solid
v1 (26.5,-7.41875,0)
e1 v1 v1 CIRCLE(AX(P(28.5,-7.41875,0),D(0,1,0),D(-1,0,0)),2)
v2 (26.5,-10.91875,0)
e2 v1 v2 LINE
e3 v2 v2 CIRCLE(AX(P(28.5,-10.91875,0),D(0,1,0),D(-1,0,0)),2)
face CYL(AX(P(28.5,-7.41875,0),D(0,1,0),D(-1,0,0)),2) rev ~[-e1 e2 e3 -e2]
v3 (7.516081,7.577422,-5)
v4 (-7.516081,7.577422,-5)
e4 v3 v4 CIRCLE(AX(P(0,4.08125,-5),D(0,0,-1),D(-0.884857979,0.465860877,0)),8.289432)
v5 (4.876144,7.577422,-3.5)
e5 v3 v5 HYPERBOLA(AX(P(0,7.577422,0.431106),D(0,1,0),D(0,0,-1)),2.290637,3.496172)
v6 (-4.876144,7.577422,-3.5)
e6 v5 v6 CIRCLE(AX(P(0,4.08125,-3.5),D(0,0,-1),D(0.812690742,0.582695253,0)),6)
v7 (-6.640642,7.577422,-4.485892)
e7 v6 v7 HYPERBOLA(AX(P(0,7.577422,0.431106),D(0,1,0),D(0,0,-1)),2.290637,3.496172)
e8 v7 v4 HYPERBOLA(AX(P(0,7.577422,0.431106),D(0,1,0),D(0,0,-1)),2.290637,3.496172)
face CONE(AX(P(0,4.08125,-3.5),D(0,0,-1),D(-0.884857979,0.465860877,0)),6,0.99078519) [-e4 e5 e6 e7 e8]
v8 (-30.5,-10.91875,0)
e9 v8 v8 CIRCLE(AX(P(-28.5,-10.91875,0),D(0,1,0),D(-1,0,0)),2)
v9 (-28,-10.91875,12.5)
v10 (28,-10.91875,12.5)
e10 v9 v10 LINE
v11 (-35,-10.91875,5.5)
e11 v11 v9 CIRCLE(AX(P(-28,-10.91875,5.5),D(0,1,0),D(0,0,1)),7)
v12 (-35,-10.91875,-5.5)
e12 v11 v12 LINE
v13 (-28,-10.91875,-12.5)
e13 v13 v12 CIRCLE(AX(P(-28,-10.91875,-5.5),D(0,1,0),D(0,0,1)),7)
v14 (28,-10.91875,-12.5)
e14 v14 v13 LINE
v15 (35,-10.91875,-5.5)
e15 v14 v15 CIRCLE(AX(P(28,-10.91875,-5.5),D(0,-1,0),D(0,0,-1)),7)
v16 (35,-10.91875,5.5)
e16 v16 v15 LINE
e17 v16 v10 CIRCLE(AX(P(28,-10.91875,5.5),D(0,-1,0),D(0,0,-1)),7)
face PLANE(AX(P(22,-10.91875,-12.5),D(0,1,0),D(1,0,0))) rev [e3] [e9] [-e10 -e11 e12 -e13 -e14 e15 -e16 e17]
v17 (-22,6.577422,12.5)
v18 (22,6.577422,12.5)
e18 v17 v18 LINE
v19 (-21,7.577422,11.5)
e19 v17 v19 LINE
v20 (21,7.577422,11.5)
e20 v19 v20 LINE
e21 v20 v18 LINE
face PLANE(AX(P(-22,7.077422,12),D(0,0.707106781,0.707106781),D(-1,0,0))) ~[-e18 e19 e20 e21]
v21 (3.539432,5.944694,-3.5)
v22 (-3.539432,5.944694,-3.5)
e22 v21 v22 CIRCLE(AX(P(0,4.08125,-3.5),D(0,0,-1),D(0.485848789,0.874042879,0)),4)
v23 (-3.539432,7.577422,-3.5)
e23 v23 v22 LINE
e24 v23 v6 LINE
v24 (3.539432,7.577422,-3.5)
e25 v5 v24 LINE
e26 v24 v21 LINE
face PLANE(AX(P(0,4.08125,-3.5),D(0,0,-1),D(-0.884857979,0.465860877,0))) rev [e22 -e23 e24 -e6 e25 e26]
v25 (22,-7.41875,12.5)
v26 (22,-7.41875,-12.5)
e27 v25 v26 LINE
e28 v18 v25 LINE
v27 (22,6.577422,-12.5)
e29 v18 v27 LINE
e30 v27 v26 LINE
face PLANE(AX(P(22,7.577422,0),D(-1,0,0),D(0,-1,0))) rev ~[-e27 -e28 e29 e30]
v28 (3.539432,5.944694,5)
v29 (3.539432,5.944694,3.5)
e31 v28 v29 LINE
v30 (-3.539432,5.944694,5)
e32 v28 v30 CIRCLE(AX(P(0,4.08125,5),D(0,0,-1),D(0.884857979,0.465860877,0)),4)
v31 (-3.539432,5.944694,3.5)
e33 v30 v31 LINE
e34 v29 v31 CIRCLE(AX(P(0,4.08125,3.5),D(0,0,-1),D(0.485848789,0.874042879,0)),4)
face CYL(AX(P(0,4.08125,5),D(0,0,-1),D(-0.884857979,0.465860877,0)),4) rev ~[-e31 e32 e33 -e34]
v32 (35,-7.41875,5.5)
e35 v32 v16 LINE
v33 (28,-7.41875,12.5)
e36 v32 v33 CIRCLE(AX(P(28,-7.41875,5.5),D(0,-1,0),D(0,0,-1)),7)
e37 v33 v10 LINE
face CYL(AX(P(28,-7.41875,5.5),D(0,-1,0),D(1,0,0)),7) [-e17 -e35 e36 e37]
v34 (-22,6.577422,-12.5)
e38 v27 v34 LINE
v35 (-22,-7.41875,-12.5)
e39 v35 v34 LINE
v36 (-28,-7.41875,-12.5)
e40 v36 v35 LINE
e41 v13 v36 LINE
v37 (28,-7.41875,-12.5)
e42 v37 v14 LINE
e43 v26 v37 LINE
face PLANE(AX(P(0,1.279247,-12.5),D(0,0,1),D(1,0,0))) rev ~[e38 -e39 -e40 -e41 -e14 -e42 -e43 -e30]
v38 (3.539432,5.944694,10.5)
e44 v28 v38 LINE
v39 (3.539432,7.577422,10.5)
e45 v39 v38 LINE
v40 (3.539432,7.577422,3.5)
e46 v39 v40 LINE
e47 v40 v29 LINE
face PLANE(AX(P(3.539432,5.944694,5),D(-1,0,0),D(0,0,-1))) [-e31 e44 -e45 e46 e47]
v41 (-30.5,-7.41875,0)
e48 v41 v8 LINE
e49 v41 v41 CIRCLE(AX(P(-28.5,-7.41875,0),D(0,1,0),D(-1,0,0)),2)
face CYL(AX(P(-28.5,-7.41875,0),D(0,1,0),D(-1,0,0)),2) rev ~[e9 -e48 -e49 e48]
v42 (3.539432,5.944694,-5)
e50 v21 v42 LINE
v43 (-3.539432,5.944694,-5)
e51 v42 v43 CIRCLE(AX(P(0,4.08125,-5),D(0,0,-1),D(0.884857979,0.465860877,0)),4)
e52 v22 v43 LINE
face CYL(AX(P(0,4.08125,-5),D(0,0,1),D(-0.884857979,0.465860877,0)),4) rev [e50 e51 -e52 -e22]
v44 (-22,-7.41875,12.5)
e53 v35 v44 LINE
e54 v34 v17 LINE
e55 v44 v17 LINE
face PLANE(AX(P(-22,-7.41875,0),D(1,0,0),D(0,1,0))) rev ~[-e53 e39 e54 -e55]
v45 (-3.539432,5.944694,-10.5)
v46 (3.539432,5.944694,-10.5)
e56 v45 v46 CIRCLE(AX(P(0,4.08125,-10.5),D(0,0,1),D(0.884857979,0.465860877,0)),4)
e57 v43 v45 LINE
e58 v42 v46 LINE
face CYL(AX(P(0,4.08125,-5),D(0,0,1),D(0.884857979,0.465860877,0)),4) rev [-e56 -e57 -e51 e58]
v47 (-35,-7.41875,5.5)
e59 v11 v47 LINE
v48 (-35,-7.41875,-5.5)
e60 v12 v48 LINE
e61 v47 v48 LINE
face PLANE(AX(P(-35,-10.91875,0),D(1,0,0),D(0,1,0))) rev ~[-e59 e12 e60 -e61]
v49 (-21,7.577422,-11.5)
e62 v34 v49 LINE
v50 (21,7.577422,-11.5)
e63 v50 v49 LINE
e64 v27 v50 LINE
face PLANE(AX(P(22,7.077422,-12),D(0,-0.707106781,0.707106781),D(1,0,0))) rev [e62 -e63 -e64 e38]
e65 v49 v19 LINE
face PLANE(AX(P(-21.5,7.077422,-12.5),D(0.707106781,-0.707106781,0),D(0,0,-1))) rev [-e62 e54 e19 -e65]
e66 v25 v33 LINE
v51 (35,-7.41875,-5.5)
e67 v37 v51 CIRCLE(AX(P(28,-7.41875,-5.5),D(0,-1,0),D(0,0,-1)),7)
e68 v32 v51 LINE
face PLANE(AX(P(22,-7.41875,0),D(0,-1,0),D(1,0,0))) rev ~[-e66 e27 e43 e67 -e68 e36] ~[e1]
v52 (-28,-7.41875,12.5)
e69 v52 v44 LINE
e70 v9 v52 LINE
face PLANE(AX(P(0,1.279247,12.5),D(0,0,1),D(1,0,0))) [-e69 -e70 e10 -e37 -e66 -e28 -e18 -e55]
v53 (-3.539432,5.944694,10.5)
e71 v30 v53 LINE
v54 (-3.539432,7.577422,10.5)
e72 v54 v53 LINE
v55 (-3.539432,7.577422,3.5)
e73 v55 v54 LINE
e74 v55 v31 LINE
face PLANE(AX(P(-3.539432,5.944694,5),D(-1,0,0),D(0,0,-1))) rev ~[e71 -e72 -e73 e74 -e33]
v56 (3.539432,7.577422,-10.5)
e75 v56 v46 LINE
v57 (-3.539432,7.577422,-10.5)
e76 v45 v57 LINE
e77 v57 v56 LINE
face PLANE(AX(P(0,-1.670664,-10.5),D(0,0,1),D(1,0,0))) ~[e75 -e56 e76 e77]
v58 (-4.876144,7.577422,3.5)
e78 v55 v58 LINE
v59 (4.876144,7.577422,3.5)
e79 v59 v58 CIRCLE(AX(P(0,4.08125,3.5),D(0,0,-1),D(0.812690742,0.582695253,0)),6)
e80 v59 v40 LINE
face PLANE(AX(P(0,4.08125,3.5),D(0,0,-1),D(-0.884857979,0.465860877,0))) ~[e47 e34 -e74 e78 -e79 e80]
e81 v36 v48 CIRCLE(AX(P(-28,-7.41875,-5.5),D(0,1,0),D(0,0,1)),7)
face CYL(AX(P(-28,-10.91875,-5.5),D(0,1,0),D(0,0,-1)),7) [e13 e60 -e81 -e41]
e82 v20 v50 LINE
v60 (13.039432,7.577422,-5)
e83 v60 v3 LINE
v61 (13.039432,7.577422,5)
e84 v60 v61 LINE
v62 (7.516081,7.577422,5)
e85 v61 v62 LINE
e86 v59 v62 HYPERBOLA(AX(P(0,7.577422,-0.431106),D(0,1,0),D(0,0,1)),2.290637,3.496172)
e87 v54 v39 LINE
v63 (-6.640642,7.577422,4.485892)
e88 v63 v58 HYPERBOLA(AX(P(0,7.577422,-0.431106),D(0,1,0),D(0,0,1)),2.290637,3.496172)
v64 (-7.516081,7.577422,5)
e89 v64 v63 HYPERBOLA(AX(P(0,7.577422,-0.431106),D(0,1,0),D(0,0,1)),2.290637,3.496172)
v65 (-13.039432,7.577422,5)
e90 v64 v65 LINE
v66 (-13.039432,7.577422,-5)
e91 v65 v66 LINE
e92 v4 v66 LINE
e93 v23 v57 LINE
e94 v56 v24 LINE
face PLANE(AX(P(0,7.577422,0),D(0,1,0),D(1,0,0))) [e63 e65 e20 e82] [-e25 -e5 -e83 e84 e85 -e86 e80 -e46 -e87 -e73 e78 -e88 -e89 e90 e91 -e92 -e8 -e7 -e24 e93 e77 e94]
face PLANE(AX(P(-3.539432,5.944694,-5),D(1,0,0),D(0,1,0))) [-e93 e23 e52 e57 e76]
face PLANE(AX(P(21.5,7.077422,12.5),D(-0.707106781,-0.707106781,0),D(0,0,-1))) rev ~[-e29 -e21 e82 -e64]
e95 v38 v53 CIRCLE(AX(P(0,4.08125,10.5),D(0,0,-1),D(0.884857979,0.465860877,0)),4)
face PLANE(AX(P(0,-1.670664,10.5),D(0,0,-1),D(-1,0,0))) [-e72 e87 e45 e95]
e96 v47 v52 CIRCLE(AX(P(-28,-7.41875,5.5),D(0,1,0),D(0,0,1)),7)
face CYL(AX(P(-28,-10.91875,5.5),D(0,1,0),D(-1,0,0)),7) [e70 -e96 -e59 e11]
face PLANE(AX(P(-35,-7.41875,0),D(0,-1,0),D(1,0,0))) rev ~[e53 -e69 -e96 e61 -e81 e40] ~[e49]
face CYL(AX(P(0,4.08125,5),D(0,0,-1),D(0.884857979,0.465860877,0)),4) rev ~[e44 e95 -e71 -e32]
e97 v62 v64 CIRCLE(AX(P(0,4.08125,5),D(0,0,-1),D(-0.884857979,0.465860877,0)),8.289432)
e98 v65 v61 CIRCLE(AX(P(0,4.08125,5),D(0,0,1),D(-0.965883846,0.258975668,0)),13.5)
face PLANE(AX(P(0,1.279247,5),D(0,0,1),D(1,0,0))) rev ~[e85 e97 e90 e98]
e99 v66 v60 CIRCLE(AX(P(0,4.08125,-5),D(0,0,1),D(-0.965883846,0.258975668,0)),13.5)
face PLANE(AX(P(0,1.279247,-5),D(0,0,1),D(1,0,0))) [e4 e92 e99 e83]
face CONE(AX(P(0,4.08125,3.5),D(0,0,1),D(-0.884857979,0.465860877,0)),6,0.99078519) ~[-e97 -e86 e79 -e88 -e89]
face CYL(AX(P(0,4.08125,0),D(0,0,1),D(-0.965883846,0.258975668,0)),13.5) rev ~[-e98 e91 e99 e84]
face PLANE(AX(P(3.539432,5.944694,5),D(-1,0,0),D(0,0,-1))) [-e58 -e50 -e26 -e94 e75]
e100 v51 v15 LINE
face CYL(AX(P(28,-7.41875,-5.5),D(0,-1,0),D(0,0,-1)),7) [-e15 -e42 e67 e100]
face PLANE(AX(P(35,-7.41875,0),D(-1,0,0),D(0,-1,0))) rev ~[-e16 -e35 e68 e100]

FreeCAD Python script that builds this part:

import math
import FreeCAD as App
import Part
import Sketcher


def edges_at(feature, points):
    """Names of the edges that pass closest to the given points."""
    edges = feature.Shape.Edges
    near = lambda p: min(range(len(edges)), key=lambda i: edges[i].distToShape(Part.Vertex(*p))[0])
    return sorted({f"Edge{near(p) + 1}" for p in points})


def add_polygon(sketch, points):
    """Adds a closed chain of lines whose ends are joined by coincident constraints."""
    first, n = sketch.GeometryCount, len(points)
    for a, b in zip(points, points[1:] + points[:1]):
        sketch.addGeometry(Part.LineSegment(App.Vector(*a, 0), App.Vector(*b, 0)), False)
    for i in range(n):
        sketch.addConstraint(Sketcher.Constraint("Coincident", first + i, 2, first + (i + 1) % n, 1))

doc = App.newDocument("Part")
params = doc.addObject("Spreadsheet::Sheet", "Params")
for row, (alias, value) in enumerate([
    ("sketch1_radius", "13.5 mm"),
    ("sketch1_width", "13 mm"),
    ("sketch1_width2", "70 mm"),
    ("sketch1_height", "3.5 mm"),
    ("pad1_length", "25 mm"),
    ("sketch2_radius", "4 mm"),
    ("sketch2_radius2", "13.5 mm"),
    ("sketch2_width", "9.5 mm"),
    ("pad2_length", "7.5 mm"),
    ("sketch3_radius", "4 mm"),
    ("sketch3_radius2", "13.5 mm"),
    ("sketch3_width", "9.5 mm"),
    ("pad3_length", "7.5 mm"),
    ("sketch4_width", "2 mm"),
    ("sketch4_height", "1.5 mm"),
    ("revolution_angle", "360 deg"),
    ("sketch5_width", "70 mm"),
    ("sketch5_height", "25 mm"),
    ("pocket1_length", "10 mm"),
    ("sketch6_height", "10 mm"),
    ("pocket2_length", "1.632728 mm"),
    ("sketch7_width", "44 mm"),
    ("pad4_length", "2 mm"),
    ("fillet_radius", "7 mm"),
    ("sketch8_diameter", "4 mm"),
    ("pocket3_length", "40 mm"),
    ("chamfer_size", "1 mm"),
], start=1):
    params.set(f"A{row}", alias)
    params.set(f"B{row}", "=" + value)
    params.setAlias(f"B{row}", alias)

body = doc.addObject("PartDesign::Body", "Body")

# Sketch on XY plane
sketch1 = body.newObject("Sketcher::SketchObject", "Sketch")
sketch1.AttachmentSupport = (doc.getObject("XY_Plane"), [""])
sketch1.MapMode = "FlatFace"
sketch1.addGeometry([
    Part.LineSegment(App.Vector(35, -7.41875, 0), App.Vector(22, -7.41875, 0)),  # 0
    Part.LineSegment(App.Vector(22, -7.41875, 0), App.Vector(22, 7.577422, 0)),  # 1
    Part.LineSegment(App.Vector(22, 7.577422, 0), App.Vector(13.039432, 7.577422, 0)),  # 2
    Part.ArcOfCircle(Part.Circle(App.Vector(0, 4.08125, 0), App.Vector(0, 0, 1), 13.5), math.radians(164.990709), math.radians(375.009291)),  # 3
    Part.LineSegment(App.Vector(-13.039432, 7.577422, 0), App.Vector(-22, 7.577422, 0)),  # 4
    Part.LineSegment(App.Vector(-22, 7.577422, 0), App.Vector(-22, -7.41875, 0)),  # 5
    Part.LineSegment(App.Vector(-22, -7.41875, 0), App.Vector(-35, -7.41875, 0)),  # 6
    Part.LineSegment(App.Vector(-35, -7.41875, 0), App.Vector(-35, -10.91875, 0)),  # 7
    Part.LineSegment(App.Vector(-35, -10.91875, 0), App.Vector(35, -10.91875, 0)),  # 8
    Part.LineSegment(App.Vector(35, -10.91875, 0), App.Vector(35, -7.41875, 0)),  # 9
], False)
sketch1.addConstraint([
    Sketcher.Constraint("Coincident", 0, 2, 1, 1),
    Sketcher.Constraint("Coincident", 1, 2, 2, 1),
    Sketcher.Constraint("Coincident", 2, 2, 3, 2),
    Sketcher.Constraint("Coincident", 3, 1, 4, 1),
    Sketcher.Constraint("Coincident", 4, 2, 5, 1),
    Sketcher.Constraint("Coincident", 5, 2, 6, 1),
    Sketcher.Constraint("Coincident", 6, 2, 7, 1),
    Sketcher.Constraint("Coincident", 7, 2, 8, 1),
    Sketcher.Constraint("Coincident", 8, 2, 9, 1),
    Sketcher.Constraint("Coincident", 9, 2, 0, 1),
    Sketcher.Constraint("Horizontal", 0),
    Sketcher.Constraint("Vertical", 1),
    Sketcher.Constraint("Horizontal", 2),
    Sketcher.Constraint("Horizontal", 4),
    Sketcher.Constraint("Vertical", 5),
    Sketcher.Constraint("Horizontal", 6),
    Sketcher.Constraint("Vertical", 7),
    Sketcher.Constraint("Horizontal", 8),
    Sketcher.Constraint("Vertical", 9),
    Sketcher.Constraint("Symmetric", 2, 2, 3, 1, -2),
    Sketcher.Constraint("Symmetric", 0, 2, 5, 2, -2),
    Sketcher.Constraint("Equal", 0, 6),
    Sketcher.Constraint("Radius", 3, 13.5),
    Sketcher.Constraint("DistanceX", 0, 2, 0, 1, 13.0),
    Sketcher.Constraint("DistanceX", 8, 1, 8, 2, 70.0),
    Sketcher.Constraint("DistanceY", 7, 2, 7, 1, 3.5),
    Sketcher.Constraint("DistanceY", 7, 2, 3, 3, 15.0),
    Sketcher.Constraint("DistanceX", 2, 2, 2, 1, 8.960568),
    Sketcher.Constraint("DistanceY", -1, 1, 3, 3, 4.08125),
])
sketch1.setExpression("Constraints[22]", "Params.sketch1_radius")
sketch1.setExpression("Constraints[23]", "Params.sketch1_width")
sketch1.setExpression("Constraints[24]", "Params.sketch1_width2")
sketch1.setExpression("Constraints[25]", "Params.sketch1_height")
pad1 = body.newObject("PartDesign::Pad", "Pad")
pad1.Profile = sketch1
pad1.setExpression("Length", "Params.pad1_length")
pad1.Midplane = True

# Sketch on XY plane
sketch2 = body.newObject("Sketcher::SketchObject", "Sketch001")
sketch2.AttachmentSupport = (doc.getObject("XY_Plane"), [""])
sketch2.MapMode = "FlatFace"
sketch2.AttachmentOffset = App.Placement(App.Vector(0, 0, 5), App.Rotation())
sketch2.addGeometry([
    Part.LineSegment(App.Vector(-3.539432, 5.944694, 0), App.Vector(-3.539432, 7.577422, 0)),  # 0
    Part.LineSegment(App.Vector(-3.539432, 7.577422, 0), App.Vector(-13.039432, 7.577422, 0)),  # 1
    Part.ArcOfCircle(Part.Circle(App.Vector(0, 4.08125, 0), App.Vector(0, 0, 1), 13.5), math.radians(164.990709), math.radians(375.009291)),  # 2
    Part.LineSegment(App.Vector(13.039432, 7.577422, 0), App.Vector(3.539432, 7.577422, 0)),  # 3
    Part.LineSegment(App.Vector(3.539432, 7.577422, 0), App.Vector(3.539432, 5.944694, 0)),  # 4
    Part.ArcOfCircle(Part.Circle(App.Vector(0, 4.08125, 0), App.Vector(0, 0, 1), 4), math.radians(152.234049), math.radians(387.765951)),  # 5
], False)
sketch2.addConstraint([
    Sketcher.Constraint("Coincident", 0, 2, 1, 1),
    Sketcher.Constraint("Coincident", 1, 2, 2, 1),
    Sketcher.Constraint("Coincident", 2, 2, 3, 1),
    Sketcher.Constraint("Coincident", 3, 2, 4, 1),
    Sketcher.Constraint("Coincident", 4, 2, 5, 2),
    Sketcher.Constraint("Coincident", 5, 1, 0, 1),
    Sketcher.Constraint("Vertical", 0),
    Sketcher.Constraint("Horizontal", 1),
    Sketcher.Constraint("Horizontal", 3),
    Sketcher.Constraint("Vertical", 4),
    Sketcher.Constraint("Coincident", 5, 3, 2, 3),
    Sketcher.Constraint("Symmetric", 1, 2, 2, 2, -2),
    Sketcher.Constraint("Horizontal", 4, 2, 5, 1),
    Sketcher.Constraint("Radius", 5, 4.0),
    Sketcher.Constraint("Radius", 2, 13.5),
    Sketcher.Constraint("DistanceX", 1, 2, 1, 1, 9.5),
    Sketcher.Constraint("DistanceY", 0, 1, 0, 2, 1.632728),
    Sketcher.Constraint("DistanceY", -1, 1, 2, 3, 4.08125),
])
sketch2.setExpression("Constraints[13]", "Params.sketch2_radius")
sketch2.setExpression("Constraints[14]", "Params.sketch2_radius2")
sketch2.setExpression("Constraints[15]", "Params.sketch2_width")
pad2 = body.newObject("PartDesign::Pad", "Pad001")
pad2.Profile = sketch2
pad2.setExpression("Length", "Params.pad2_length")

# Sketch on XY plane
sketch3 = body.newObject("Sketcher::SketchObject", "Sketch002")
sketch3.AttachmentSupport = (doc.getObject("XY_Plane"), [""])
sketch3.MapMode = "FlatFace"
sketch3.AttachmentOffset = App.Placement(App.Vector(0, 0, -5), App.Rotation())
sketch3.addGeometry([
    Part.LineSegment(App.Vector(3.539432, 7.577422, 0), App.Vector(3.539432, 5.944694, 0)),  # 0
    Part.ArcOfCircle(Part.Circle(App.Vector(0, 4.08125, 0), App.Vector(0, 0, 1), 4), math.radians(152.234049), math.radians(387.765951)),  # 1
    Part.LineSegment(App.Vector(-3.539432, 5.944694, 0), App.Vector(-3.539432, 7.577422, 0)),  # 2
    Part.LineSegment(App.Vector(-3.539432, 7.577422, 0), App.Vector(-13.039432, 7.577422, 0)),  # 3
    Part.ArcOfCircle(Part.Circle(App.Vector(0, 4.08125, 0), App.Vector(0, 0, 1), 13.5), math.radians(164.990709), math.radians(375.009291)),  # 4
    Part.LineSegment(App.Vector(13.039432, 7.577422, 0), App.Vector(3.539432, 7.577422, 0)),  # 5
], False)
sketch3.addConstraint([
    Sketcher.Constraint("Coincident", 0, 2, 1, 2),
    Sketcher.Constraint("Coincident", 1, 1, 2, 1),
    Sketcher.Constraint("Coincident", 2, 2, 3, 1),
    Sketcher.Constraint("Coincident", 3, 2, 4, 1),
    Sketcher.Constraint("Coincident", 4, 2, 5, 1),
    Sketcher.Constraint("Coincident", 5, 2, 0, 1),
    Sketcher.Constraint("Vertical", 0),
    Sketcher.Constraint("Vertical", 2),
    Sketcher.Constraint("Horizontal", 3),
    Sketcher.Constraint("Horizontal", 5),
    Sketcher.Constraint("Coincident", 4, 3, 1, 3),
    Sketcher.Constraint("Symmetric", 0, 2, 1, 1, -2),
    Sketcher.Constraint("Horizontal", 3, 2, 4, 2),
    Sketcher.Constraint("Radius", 1, 4.0),
    Sketcher.Constraint("Radius", 4, 13.5),
    Sketcher.Constraint("DistanceX", 3, 2, 3, 1, 9.5),
    Sketcher.Constraint("DistanceY", 0, 2, 0, 1, 1.632728),
    Sketcher.Constraint("DistanceY", -1, 1, 1, 3, 4.08125),
])
sketch3.setExpression("Constraints[13]", "Params.sketch3_radius")
sketch3.setExpression("Constraints[14]", "Params.sketch3_radius2")
sketch3.setExpression("Constraints[15]", "Params.sketch3_width")
pad3 = body.newObject("PartDesign::Pad", "Pad002")
pad3.Profile = sketch3
pad3.setExpression("Length", "Params.pad3_length")
pad3.Reversed = True

# Sketch on XZ plane
sketch4 = body.newObject("Sketcher::SketchObject", "Sketch003")
sketch4.AttachmentSupport = (doc.getObject("XZ_Plane"), [""])
sketch4.MapMode = "FlatFace"
sketch4.AttachmentOffset = App.Placement(App.Vector(0, 0, -4.08125), App.Rotation())
add_polygon(sketch4, [(-4, 5), (-4, 3.5), (-6, 3.5), (-8.289432, 5)])  # lines 0-3
add_polygon(sketch4, [(-4, -3.5), (-4, -5), (-8.289432, -5), (-6, -3.5)])  # lines 4-7
sketch4.addConstraint([
    Sketcher.Constraint("Vertical", 0),
    Sketcher.Constraint("Horizontal", 1),
    Sketcher.Constraint("Horizontal", 3),
    Sketcher.Constraint("Vertical", 4),
    Sketcher.Constraint("Horizontal", 5),
    Sketcher.Constraint("Horizontal", 7),
    Sketcher.Constraint("Symmetric", 3, 2, 4, 2, -1),
    Sketcher.Constraint("Symmetric", 1, 2, 6, 2, -1),
    Sketcher.Constraint("Vertical", 2, 2, 5, 2),
    Sketcher.Constraint("DistanceX", 1, 2, 1, 1, 2.0),
    Sketcher.Constraint("DistanceY", 0, 2, 0, 1, 1.5),
    Sketcher.Constraint("DistanceX", 0, 2, -1, 1, 4.0),
    Sketcher.Constraint("DistanceY", -1, 1, 2, 2, 5.0),
    Sketcher.Constraint("DistanceX", 3, 1, 3, 2, 4.289432),
])
sketch4.setExpression("Constraints[17]", "Params.sketch4_width")
sketch4.setExpression("Constraints[18]", "Params.sketch4_height")
revolution = body.newObject("PartDesign::Revolution", "Revolution")
revolution.Profile = sketch4
revolution.ReferenceAxis = (sketch4, ["V_Axis"])
revolution.setExpression("Angle", "Params.revolution_angle")

# Sketch on XZ plane
sketch5 = body.newObject("Sketcher::SketchObject", "Sketch004")
sketch5.AttachmentSupport = (doc.getObject("XZ_Plane"), [""])
sketch5.MapMode = "FlatFace"
sketch5.AttachmentOffset = App.Placement(App.Vector(0, 0, -7.577422), App.Rotation())
add_polygon(sketch5, [(-35, -12.5), (-35, 12.5), (35, 12.5), (35, -12.5)])  # lines 0-3
sketch5.addConstraint([
    Sketcher.Constraint("Vertical", 0),
    Sketcher.Constraint("Horizontal", 1),
    Sketcher.Constraint("Vertical", 2),
    Sketcher.Constraint("Horizontal", 3),
    Sketcher.Constraint("Symmetric", 0, 2, 2, 2, -1, 1),
    Sketcher.Constraint("DistanceX", 1, 1, 1, 2, 70.0),
    Sketcher.Constraint("DistanceY", 0, 1, 0, 2, 25.0),
])
sketch5.setExpression("Constraints[9]", "Params.sketch5_width")
sketch5.setExpression("Constraints[10]", "Params.sketch5_height")
pocket1 = body.newObject("PartDesign::Pocket", "Pocket")
pocket1.Profile = sketch5
pocket1.setExpression("Length", "Params.pocket1_length")

# Sketch on XZ plane
sketch6 = body.newObject("Sketcher::SketchObject", "Sketch005")
sketch6.AttachmentSupport = (doc.getObject("XZ_Plane"), [""])
sketch6.MapMode = "FlatFace"
sketch6.AttachmentOffset = App.Placement(App.Vector(0, 0, -5.944694), App.Rotation())
add_polygon(sketch6, [(-3.539432, -5), (-3.539432, 5), (3.539432, 5), (3.539432, -5)])  # lines 0-3
sketch6.addConstraint([
    Sketcher.Constraint("Vertical", 0),
    Sketcher.Constraint("Horizontal", 1),
    Sketcher.Constraint("Vertical", 2),
    Sketcher.Constraint("Horizontal", 3),
    Sketcher.Constraint("Symmetric", 0, 2, 2, 2, -1, 1),
    Sketcher.Constraint("DistanceY", 0, 1, 0, 2, 10.0),
    Sketcher.Constraint("DistanceX", 1, 1, 1, 2, 7.078864),
])
sketch6.setExpression("Constraints[9]", "Params.sketch6_height")
pocket2 = body.newObject("PartDesign::Pocket", "Pocket001")
pocket2.Profile = sketch6
pocket2.setExpression("Length", "Params.pocket2_length")

# Sketch on XY plane
sketch7 = body.newObject("Sketcher::SketchObject", "Sketch006")
sketch7.AttachmentSupport = (doc.getObject("XY_Plane"), [""])
sketch7.MapMode = "FlatFace"
sketch7.AttachmentOffset = App.Placement(App.Vector(0, 0, 12.5), App.Rotation())
add_polygon(sketch7, [(-22, 7.577422), (-22, -10.91875), (22, -10.91875), (22, 7.577422)])  # lines 0-3
sketch7.addConstraint([
    Sketcher.Constraint("Vertical", 0),
    Sketcher.Constraint("Horizontal", 1),
    Sketcher.Constraint("Vertical", 2),
    Sketcher.Constraint("Horizontal", 3),
    Sketcher.Constraint("DistanceX", 1, 1, 1, 2, 44.0),
    Sketcher.Constraint("DistanceX", 0, 2, -1, 1, 22.0),
    Sketcher.Constraint("DistanceY", 0, 2, 0, 1, 18.496172),
    Sketcher.Constraint("DistanceY", 0, 2, -1, 1, 10.91875),
])
sketch7.setExpression("Constraints[8]", "Params.sketch7_width")
pad4 = body.newObject("PartDesign::Pad", "Pad003")
pad4.Profile = sketch7
pad4.setExpression("Length", "Params.pad4_length")
pad4.Reversed = True
doc.recompute()

mirrored = body.newObject("PartDesign::Mirrored", "Mirrored")
mirrored.Originals = [pad4]
mirrored.MirrorPlane = (doc.getObject("XY_Plane"), [""])
body.Tip = mirrored
doc.recompute()

fillet = body.newObject("PartDesign::Fillet", "Fillet")
fillet.Base = (mirrored, edges_at(mirrored, [
    (35, -9.169, -12.5),
    (-35, -9.169, -12.5),
    (-35, -9.169, 12.5),
    (35, -9.169, 12.5),
]))
fillet.setExpression("Radius", "Params.fillet_radius")

# Sketch on XZ plane
sketch8 = body.newObject("Sketcher::SketchObject", "Sketch007")
sketch8.AttachmentSupport = (doc.getObject("XZ_Plane"), [""])
sketch8.MapMode = "FlatFace"
sketch8.AttachmentOffset = App.Placement(App.Vector(0, 0, 7.41875), App.Rotation())
sketch8.addGeometry([
    Part.Circle(App.Vector(28.5, 0, 0), App.Vector(0, 0, 1), 2),
    Part.Circle(App.Vector(-28.5, 0, 0), App.Vector(0, 0, 1), 2),
], False)
sketch8.addConstraint([
    Sketcher.Constraint("Equal", 0, 1),
    Sketcher.Constraint("Symmetric", 0, 3, 1, 3, -1, 1),
    Sketcher.Constraint("PointOnObject", 0, 3, -1),
    Sketcher.Constraint("Diameter", 0, 4.0),
    Sketcher.Constraint("DistanceX", 1, 3, 0, 3, 57.0),
])
sketch8.setExpression("Constraints[3]", "Params.sketch8_diameter")
pocket3 = body.newObject("PartDesign::Pocket", "Pocket002")
pocket3.Profile = sketch8
pocket3.setExpression("Length", "Params.pocket3_length")
pocket3.Reversed = True
doc.recompute()

chamfer = body.newObject("PartDesign::Chamfer", "Chamfer")
chamfer.Base = (pocket3, edges_at(pocket3, [
    (0, 7.577, -12.5),
    (22, 7.577, 0),
    (-22, 7.577, 0),
    (0, 7.577, 12.5),
]))
chamfer.setExpression("Size", "Params.chamfer_size")

doc.recompute()
